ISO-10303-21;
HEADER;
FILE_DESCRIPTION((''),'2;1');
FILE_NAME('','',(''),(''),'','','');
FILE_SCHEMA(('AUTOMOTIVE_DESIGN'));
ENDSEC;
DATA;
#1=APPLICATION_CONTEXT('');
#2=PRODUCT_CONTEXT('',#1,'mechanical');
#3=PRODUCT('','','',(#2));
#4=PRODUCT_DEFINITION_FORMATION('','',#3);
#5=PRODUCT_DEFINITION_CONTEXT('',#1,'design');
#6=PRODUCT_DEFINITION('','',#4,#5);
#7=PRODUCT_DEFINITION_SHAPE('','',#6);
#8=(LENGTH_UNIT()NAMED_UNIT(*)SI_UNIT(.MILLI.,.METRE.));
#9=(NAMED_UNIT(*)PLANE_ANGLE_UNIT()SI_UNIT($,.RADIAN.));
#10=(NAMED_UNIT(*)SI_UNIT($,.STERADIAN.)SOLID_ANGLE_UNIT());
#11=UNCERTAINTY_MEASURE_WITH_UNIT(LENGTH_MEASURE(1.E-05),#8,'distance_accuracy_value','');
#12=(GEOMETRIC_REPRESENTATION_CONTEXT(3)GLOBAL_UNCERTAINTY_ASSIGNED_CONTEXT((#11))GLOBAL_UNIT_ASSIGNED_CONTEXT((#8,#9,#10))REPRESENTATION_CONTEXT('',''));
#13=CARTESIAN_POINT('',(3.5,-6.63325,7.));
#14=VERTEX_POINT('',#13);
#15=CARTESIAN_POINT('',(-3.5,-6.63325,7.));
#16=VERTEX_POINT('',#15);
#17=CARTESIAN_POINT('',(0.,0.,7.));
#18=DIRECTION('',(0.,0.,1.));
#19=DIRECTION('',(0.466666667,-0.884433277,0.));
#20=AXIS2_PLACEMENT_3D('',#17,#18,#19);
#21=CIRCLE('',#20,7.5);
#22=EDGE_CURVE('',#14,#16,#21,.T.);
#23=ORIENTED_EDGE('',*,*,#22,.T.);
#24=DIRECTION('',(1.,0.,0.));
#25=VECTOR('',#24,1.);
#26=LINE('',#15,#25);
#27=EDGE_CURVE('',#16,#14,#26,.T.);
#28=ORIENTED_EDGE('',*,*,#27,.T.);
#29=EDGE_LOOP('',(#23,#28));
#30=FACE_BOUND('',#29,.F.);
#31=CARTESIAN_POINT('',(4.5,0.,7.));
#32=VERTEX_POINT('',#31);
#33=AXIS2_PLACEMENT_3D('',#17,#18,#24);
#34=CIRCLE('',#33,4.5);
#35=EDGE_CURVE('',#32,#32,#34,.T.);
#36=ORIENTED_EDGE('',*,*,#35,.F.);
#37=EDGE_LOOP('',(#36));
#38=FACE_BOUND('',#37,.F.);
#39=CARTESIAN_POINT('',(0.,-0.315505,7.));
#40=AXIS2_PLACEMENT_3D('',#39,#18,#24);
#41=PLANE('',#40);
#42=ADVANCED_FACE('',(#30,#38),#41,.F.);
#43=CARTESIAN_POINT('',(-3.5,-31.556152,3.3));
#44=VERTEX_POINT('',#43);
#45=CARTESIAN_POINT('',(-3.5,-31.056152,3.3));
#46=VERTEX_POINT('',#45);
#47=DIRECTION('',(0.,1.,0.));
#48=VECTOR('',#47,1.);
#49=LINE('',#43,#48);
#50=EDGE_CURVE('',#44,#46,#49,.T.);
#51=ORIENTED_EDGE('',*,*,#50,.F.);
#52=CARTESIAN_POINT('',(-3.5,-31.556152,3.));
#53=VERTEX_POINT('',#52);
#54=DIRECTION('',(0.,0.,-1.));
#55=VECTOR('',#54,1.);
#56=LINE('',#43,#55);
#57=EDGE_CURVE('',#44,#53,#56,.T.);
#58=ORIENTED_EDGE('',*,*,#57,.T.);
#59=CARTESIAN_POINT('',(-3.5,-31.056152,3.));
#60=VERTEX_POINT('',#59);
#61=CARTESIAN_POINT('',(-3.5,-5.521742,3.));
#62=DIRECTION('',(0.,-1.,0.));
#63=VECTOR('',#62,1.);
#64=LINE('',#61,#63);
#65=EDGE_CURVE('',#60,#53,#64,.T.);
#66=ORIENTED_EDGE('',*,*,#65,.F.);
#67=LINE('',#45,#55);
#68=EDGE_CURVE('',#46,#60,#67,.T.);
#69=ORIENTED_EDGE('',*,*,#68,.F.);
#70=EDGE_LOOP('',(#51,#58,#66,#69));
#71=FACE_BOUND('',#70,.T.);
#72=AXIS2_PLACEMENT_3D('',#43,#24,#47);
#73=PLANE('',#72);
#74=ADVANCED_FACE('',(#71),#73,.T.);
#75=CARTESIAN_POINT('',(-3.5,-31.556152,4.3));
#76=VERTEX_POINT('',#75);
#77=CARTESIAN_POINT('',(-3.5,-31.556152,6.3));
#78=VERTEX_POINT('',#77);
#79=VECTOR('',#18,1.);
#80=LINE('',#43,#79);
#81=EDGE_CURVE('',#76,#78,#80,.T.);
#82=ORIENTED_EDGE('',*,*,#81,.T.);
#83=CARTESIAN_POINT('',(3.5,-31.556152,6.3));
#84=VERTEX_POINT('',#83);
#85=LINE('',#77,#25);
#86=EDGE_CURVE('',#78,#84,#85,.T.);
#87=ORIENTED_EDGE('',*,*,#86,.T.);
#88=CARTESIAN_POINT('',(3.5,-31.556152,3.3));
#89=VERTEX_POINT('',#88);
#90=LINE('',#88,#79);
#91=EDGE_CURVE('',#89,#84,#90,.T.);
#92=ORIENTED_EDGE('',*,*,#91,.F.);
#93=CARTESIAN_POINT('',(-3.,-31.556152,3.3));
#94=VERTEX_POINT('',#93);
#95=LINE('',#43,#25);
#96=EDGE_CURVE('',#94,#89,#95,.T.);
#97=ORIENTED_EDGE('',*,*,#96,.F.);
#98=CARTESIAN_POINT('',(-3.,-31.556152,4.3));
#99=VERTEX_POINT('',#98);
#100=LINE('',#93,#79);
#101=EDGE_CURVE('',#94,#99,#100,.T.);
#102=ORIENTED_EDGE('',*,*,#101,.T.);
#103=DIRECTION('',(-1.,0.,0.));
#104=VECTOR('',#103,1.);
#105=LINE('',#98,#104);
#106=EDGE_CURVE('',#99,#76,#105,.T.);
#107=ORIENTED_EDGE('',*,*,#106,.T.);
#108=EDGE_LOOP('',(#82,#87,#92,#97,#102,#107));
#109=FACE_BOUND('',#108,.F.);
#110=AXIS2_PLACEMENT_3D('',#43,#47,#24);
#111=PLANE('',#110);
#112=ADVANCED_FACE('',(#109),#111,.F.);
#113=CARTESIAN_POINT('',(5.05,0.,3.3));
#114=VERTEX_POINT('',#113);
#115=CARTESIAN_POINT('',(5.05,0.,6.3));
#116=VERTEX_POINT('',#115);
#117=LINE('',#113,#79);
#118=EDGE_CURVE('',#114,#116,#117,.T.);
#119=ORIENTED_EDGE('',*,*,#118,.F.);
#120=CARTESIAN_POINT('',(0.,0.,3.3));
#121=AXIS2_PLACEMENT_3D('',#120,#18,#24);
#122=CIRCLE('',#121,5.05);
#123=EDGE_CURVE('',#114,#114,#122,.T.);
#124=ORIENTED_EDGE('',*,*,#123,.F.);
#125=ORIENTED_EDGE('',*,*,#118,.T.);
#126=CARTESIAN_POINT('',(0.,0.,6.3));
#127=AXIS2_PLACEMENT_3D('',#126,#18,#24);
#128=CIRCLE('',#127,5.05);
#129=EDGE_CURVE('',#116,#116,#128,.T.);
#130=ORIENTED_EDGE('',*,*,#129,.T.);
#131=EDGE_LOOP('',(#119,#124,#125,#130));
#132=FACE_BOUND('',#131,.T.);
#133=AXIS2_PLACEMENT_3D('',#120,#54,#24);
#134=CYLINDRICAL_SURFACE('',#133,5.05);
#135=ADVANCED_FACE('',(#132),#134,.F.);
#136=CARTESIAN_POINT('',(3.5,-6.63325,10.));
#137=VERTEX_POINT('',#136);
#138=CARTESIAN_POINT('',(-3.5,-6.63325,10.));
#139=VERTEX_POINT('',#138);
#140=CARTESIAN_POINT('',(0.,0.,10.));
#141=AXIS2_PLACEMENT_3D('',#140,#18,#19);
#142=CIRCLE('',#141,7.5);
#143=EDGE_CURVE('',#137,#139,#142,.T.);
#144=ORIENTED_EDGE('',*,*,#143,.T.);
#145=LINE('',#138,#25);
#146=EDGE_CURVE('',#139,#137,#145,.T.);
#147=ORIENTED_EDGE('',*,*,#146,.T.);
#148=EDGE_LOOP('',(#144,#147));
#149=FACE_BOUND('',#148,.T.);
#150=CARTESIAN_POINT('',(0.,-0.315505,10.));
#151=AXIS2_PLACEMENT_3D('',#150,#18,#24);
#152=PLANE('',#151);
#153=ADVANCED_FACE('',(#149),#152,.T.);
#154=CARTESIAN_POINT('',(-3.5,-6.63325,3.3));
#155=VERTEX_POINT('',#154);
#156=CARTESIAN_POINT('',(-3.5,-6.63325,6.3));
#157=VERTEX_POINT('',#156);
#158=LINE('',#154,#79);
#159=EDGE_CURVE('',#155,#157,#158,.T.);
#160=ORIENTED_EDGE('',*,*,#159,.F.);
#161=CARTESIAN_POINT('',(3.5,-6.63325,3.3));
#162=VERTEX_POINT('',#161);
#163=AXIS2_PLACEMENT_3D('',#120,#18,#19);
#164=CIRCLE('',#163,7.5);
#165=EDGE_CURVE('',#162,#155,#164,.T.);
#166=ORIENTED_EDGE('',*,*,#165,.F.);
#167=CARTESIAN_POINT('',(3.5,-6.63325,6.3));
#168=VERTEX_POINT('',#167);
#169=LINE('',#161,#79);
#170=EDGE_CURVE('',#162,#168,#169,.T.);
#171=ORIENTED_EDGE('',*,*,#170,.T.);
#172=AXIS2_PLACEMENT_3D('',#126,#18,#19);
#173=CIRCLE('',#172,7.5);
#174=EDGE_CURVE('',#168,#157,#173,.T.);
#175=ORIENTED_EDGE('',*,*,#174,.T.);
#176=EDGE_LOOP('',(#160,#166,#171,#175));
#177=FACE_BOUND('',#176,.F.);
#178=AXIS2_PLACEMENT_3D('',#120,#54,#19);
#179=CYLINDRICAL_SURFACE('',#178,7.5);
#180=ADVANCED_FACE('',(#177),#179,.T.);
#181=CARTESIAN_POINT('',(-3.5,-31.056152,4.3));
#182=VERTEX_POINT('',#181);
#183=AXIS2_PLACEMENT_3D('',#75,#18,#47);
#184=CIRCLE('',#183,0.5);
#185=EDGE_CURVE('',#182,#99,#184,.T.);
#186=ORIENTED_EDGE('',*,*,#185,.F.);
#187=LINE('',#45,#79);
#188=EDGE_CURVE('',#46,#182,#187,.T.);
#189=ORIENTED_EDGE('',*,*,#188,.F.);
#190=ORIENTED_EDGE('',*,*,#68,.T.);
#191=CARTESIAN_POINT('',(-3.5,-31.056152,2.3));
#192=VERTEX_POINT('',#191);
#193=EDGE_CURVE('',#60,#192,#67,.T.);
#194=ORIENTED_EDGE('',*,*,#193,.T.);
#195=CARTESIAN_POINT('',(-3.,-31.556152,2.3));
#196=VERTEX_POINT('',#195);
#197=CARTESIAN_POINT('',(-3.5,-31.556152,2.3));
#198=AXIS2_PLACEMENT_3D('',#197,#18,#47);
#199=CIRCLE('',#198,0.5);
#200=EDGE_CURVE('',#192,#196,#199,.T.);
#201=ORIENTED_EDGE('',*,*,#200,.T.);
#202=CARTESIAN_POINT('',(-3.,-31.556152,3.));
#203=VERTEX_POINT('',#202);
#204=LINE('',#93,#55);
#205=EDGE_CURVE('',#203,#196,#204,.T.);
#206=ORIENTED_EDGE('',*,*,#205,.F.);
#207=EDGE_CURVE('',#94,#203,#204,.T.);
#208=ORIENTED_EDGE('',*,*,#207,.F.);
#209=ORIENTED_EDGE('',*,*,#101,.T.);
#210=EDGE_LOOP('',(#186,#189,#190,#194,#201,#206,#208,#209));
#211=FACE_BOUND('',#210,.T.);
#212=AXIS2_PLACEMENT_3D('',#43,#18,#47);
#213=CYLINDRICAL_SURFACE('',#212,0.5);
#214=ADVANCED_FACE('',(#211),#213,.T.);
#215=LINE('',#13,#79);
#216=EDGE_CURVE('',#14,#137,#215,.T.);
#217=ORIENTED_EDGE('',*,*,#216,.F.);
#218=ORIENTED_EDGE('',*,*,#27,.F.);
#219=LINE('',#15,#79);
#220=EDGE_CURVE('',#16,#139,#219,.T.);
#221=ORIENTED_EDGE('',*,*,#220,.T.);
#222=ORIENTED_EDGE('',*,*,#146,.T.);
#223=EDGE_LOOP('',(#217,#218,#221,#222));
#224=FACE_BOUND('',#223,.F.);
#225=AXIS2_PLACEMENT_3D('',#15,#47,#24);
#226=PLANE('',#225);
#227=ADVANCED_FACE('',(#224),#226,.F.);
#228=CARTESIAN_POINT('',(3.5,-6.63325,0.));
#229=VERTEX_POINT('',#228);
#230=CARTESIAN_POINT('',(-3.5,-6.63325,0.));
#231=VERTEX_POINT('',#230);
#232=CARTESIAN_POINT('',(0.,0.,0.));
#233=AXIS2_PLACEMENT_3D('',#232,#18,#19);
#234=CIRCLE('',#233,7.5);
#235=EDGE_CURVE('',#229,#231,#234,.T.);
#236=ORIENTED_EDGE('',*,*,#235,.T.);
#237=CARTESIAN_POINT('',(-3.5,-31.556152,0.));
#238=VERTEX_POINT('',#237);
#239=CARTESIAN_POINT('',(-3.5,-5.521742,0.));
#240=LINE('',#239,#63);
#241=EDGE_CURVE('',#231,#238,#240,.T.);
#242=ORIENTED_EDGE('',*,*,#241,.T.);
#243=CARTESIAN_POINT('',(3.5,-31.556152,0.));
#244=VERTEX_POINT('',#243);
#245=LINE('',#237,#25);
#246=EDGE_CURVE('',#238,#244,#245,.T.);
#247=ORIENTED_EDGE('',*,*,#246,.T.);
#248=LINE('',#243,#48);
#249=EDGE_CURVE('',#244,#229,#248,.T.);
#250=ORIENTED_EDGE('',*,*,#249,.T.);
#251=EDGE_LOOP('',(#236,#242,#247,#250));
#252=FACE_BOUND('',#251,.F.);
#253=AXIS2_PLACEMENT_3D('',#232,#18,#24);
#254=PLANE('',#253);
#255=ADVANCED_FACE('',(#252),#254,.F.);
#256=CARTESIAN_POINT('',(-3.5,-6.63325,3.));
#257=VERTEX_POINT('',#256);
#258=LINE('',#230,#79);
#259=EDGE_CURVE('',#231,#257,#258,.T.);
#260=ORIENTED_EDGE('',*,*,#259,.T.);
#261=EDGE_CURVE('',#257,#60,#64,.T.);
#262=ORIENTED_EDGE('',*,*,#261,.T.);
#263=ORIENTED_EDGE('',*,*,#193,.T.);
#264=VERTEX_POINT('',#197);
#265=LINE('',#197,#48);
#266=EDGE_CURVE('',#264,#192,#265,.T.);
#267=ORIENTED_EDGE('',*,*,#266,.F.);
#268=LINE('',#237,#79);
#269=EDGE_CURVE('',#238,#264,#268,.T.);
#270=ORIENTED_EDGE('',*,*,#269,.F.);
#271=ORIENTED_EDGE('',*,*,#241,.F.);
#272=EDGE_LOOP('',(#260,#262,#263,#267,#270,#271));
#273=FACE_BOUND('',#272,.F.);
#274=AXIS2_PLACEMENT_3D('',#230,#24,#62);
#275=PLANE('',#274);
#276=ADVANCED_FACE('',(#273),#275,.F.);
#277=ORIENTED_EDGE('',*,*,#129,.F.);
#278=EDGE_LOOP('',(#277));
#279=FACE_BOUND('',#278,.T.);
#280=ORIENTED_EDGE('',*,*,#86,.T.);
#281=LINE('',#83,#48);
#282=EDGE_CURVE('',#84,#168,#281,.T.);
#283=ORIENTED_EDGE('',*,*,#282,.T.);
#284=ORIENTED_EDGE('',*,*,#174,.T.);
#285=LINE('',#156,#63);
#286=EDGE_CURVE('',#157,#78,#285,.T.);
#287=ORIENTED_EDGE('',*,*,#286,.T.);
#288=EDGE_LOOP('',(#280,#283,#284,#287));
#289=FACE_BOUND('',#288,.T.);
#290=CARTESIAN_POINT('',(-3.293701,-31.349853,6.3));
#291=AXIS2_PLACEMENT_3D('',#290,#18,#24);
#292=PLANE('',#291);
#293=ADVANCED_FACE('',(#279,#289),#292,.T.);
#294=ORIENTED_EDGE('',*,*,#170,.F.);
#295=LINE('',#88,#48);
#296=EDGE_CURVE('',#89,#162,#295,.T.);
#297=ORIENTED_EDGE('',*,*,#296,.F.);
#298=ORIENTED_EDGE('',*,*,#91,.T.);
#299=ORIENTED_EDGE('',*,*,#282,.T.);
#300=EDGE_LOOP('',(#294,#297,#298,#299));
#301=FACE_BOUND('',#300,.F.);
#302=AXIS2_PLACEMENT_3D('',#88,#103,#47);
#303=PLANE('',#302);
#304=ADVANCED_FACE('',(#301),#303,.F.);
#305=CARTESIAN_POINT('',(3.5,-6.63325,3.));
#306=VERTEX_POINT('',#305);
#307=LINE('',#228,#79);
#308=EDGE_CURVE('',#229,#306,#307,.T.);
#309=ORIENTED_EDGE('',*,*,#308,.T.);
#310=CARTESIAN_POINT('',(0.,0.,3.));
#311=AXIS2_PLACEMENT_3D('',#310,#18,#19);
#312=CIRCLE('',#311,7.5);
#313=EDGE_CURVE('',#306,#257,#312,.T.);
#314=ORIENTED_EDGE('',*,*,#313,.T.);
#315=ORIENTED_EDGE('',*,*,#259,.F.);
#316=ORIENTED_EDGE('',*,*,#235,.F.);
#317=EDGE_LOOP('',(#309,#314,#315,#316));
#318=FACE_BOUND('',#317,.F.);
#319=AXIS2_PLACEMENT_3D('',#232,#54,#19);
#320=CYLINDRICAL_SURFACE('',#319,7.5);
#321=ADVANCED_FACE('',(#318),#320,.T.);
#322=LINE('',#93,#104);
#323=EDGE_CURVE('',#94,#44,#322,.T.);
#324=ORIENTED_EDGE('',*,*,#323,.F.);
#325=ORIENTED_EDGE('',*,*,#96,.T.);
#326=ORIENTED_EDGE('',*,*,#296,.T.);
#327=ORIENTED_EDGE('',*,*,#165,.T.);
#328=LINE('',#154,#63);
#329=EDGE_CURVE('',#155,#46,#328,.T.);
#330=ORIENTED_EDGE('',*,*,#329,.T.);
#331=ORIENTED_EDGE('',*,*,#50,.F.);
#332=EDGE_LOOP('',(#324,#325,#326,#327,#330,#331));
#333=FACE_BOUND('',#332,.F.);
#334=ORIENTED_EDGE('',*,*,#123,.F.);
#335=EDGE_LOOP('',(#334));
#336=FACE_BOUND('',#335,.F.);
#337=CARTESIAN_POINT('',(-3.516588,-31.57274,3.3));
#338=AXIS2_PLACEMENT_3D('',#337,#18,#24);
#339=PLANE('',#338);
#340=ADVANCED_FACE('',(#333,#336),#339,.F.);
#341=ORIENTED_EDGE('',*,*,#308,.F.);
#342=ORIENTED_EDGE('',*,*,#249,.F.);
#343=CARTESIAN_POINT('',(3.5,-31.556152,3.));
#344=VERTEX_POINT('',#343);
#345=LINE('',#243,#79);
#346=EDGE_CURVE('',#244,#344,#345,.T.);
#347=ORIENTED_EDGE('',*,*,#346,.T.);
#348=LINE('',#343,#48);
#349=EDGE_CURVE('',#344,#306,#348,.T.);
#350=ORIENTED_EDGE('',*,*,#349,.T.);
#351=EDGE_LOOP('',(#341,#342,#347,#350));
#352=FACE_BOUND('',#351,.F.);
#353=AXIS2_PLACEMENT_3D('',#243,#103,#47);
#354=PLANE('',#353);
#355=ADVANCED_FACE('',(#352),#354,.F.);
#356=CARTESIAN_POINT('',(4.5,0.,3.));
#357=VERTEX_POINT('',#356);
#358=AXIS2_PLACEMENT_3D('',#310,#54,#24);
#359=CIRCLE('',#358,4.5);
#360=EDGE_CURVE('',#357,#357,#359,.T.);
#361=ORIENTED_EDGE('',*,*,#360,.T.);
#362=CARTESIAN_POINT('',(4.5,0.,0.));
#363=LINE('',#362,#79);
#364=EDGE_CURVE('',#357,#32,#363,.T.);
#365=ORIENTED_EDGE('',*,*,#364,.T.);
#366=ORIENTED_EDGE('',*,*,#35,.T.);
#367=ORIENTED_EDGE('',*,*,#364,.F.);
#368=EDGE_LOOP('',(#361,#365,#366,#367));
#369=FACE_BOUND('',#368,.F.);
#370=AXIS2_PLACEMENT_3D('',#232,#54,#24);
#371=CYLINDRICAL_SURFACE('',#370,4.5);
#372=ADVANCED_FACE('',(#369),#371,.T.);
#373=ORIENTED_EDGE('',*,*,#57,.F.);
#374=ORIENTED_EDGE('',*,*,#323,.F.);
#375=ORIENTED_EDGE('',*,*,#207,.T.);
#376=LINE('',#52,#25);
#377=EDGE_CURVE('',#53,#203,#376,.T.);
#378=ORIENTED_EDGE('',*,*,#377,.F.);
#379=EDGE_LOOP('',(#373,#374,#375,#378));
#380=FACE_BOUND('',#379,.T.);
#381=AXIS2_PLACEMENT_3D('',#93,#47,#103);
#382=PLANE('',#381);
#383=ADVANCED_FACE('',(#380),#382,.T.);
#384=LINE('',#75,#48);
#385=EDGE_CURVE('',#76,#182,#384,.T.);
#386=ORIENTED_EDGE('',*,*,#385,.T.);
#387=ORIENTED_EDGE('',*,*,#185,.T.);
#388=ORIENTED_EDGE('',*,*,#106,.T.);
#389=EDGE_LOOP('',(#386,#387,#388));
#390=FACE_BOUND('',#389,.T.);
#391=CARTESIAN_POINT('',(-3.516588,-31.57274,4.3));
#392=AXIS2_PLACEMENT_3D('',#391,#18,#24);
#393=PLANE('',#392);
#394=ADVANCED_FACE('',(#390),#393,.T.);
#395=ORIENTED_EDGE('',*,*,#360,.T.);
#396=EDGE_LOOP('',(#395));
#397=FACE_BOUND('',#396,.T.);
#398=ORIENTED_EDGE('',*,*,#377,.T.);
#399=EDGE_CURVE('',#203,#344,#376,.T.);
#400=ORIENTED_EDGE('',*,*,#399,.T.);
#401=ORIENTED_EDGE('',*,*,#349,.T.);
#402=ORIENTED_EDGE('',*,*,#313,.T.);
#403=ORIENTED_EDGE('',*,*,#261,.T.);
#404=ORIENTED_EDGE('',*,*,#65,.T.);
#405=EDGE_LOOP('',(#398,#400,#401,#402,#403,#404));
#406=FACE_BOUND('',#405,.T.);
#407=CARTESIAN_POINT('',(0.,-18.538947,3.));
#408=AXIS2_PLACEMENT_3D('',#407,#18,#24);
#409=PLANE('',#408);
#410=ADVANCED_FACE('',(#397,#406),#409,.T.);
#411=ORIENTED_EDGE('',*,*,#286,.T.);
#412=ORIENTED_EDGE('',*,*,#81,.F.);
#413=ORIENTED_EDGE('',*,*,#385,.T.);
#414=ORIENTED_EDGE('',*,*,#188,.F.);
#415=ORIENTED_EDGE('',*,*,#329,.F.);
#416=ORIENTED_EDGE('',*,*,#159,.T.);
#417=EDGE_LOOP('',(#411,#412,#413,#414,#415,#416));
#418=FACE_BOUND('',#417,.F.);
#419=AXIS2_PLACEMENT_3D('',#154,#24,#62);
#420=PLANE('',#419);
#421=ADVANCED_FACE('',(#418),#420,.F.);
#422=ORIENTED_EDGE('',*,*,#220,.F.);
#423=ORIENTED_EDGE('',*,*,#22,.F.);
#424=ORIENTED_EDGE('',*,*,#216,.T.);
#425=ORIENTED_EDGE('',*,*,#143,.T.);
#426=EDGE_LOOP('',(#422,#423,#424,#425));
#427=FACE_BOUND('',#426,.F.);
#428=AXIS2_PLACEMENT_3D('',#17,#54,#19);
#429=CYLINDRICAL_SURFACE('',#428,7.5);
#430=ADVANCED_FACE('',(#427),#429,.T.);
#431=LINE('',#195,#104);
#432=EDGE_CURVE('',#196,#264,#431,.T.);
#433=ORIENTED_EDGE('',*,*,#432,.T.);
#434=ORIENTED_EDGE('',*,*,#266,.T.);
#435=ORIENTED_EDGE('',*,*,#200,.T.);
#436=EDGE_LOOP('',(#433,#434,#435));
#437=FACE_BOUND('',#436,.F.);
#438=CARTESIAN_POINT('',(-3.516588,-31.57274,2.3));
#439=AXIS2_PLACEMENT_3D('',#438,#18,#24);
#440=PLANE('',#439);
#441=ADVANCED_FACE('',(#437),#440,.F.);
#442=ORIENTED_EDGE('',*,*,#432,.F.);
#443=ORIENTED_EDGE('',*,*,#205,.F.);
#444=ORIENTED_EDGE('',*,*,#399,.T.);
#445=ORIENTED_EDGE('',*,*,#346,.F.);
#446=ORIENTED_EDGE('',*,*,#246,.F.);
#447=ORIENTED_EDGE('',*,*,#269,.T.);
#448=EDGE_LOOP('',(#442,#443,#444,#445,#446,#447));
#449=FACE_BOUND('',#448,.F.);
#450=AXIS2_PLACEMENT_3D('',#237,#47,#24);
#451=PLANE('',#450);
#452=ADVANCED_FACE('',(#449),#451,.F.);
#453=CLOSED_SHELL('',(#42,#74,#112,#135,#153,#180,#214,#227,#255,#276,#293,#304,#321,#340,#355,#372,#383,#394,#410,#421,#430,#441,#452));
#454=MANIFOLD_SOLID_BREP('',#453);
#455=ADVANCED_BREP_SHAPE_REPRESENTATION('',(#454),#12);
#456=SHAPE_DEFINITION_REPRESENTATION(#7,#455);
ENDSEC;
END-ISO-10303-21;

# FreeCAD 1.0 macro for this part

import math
import FreeCAD as App
import Part
import Sketcher

V = App.Vector
Q = App.Units.Quantity

doc = App.newDocument("Part")
body = doc.addObject("PartDesign::Body", "Body")

sketch1 = doc.addObject("Sketcher::SketchObject", "Sketch")
body.addObject(sketch1)
sketch1.AttachmentSupport = (doc.XY_Plane, [""])
sketch1.MapMode = "FlatFace"
sketch1.AttachmentOffset = App.Placement(V(0, 0, 3.3), App.Rotation())
sketch1.addGeometry([
    Part.LineSegment(V(-4, -32, 0), V(4, -32, 0)),
    Part.LineSegment(V(4, -32, 0), V(4, -7, 0)),
    Part.ArcOfCircle(Part.Circle(V(0, 0, 0), V(0, 0, 1), 8), math.radians(-62), math.radians(242)),
    Part.LineSegment(V(-4, -7, 0), V(-4, -32, 0)),
    Part.Circle(V(0, 0, 0), V(0, 0, 1), 5),
], False)
sketch1.addConstraint([
    Sketcher.Constraint("Coincident", 0, 2, 1, 1),
    Sketcher.Constraint("Coincident", 1, 2, 2, 1),
    Sketcher.Constraint("Coincident", 2, 2, 3, 1),
    Sketcher.Constraint("Coincident", 3, 2, 0, 1),
    Sketcher.Constraint("Horizontal", 0),
    Sketcher.Constraint("Vertical", 1),
    Sketcher.Constraint("Vertical", 3),
    Sketcher.Constraint("Coincident", 2, 3, -1, 1),
    Sketcher.Constraint("Coincident", 4, 3, -1, 1),
    Sketcher.Constraint("Horizontal", 1, 2, 2, 2),
    Sketcher.Constraint("Diameter", 4, Q("10.1 mm")),
    Sketcher.Constraint("Radius", 2, Q("7.5 mm")),
    Sketcher.Constraint("DistanceX", 0, 1, 0, 2, Q("7 mm")),
    Sketcher.Constraint("DistanceY", 1, 1, 1, 2, Q("24.922903 mm")),
])
pad1 = doc.addObject("PartDesign::Pad", "Pad")
body.addObject(pad1)
pad1.Profile = sketch1
pad1.Length = 3
body2 = doc.addObject("PartDesign::Body", "Body001")

sketch2 = doc.addObject("Sketcher::SketchObject", "Sketch001")
body2.addObject(sketch2)
sketch2.AttachmentSupport = (doc.getObject("XY_Plane001"), [""])
sketch2.MapMode = "FlatFace"
sketch2.addGeometry([
    Part.LineSegment(V(4, -32, 0), V(4, -7, 0)),
    Part.ArcOfCircle(Part.Circle(V(0, 0, 0), V(0, 0, 1), 8), math.radians(-62), math.radians(242)),
    Part.LineSegment(V(-4, -7, 0), V(-4, -32, 0)),
    Part.LineSegment(V(-4, -32, 0), V(4, -32, 0)),
], False)
sketch2.addConstraint([
    Sketcher.Constraint("Coincident", 0, 2, 1, 1),
    Sketcher.Constraint("Coincident", 1, 2, 2, 1),
    Sketcher.Constraint("Coincident", 2, 2, 3, 1),
    Sketcher.Constraint("Coincident", 3, 2, 0, 1),
    Sketcher.Constraint("Vertical", 0),
    Sketcher.Constraint("Vertical", 2),
    Sketcher.Constraint("Horizontal", 3),
    Sketcher.Constraint("Coincident", 1, 3, -1, 1),
    Sketcher.Constraint("Horizontal", 0, 2, 1, 2),
    Sketcher.Constraint("Radius", 1, Q("7.5 mm")),
    Sketcher.Constraint("DistanceX", 3, 1, 3, 2, Q("7 mm")),
    Sketcher.Constraint("DistanceY", 0, 1, 0, 2, Q("24.922903 mm")),
])
pad2 = doc.addObject("PartDesign::Pad", "Pad001")
body2.addObject(pad2)
pad2.Profile = sketch2
pad2.Length = 3

sketch3 = doc.addObject("Sketcher::SketchObject", "Sketch002")
body2.addObject(sketch3)
sketch3.AttachmentSupport = (doc.getObject("XY_Plane001"), [""])
sketch3.MapMode = "FlatFace"
sketch3.addGeometry(Part.Circle(V(0, 0, 0), V(0, 0, 1), 4.5), False)
sketch3.addConstraint([
    Sketcher.Constraint("Coincident", 0, 3, -1, 1),
    Sketcher.Constraint("Diameter", 0, Q("9 mm")),
])
pad3 = doc.addObject("PartDesign::Pad", "Pad002")
body2.addObject(pad3)
pad3.Profile = sketch3
pad3.Length = 7

sketch4 = doc.addObject("Sketcher::SketchObject", "Sketch003")
body2.addObject(sketch4)
sketch4.AttachmentSupport = (doc.getObject("XY_Plane001"), [""])
sketch4.MapMode = "FlatFace"
sketch4.AttachmentOffset = App.Placement(V(0, 0, 7), App.Rotation())
sketch4.addGeometry([
    Part.LineSegment(V(-4, -7, 0), V(4, -7, 0)),
    Part.ArcOfCircle(Part.Circle(V(0, 0, 0), V(0, 0, 1), 8), math.radians(-62), math.radians(242)),
], False)
sketch4.addConstraint([
    Sketcher.Constraint("Coincident", 0, 1, 1, 2),
    Sketcher.Constraint("Coincident", 1, 1, 0, 2),
    Sketcher.Constraint("Horizontal", 0),
    Sketcher.Constraint("Coincident", 1, 3, -1, 1),
    Sketcher.Constraint("Radius", 1, Q("7.5 mm")),
    Sketcher.Constraint("DistanceX", 0, 1, 0, 2, Q("7 mm")),
])
pad4 = doc.addObject("PartDesign::Pad", "Pad003")
body2.addObject(pad4)
pad4.Profile = sketch4
pad4.Length = 3
body.AllowCompound = True
doc.recompute()

boolean = doc.addObject("PartDesign::Boolean", "Boolean")
body.addObject(boolean)
boolean.Type = "Fuse"
boolean.addObjects([body2])

sketch5 = doc.addObject("Sketcher::SketchObject", "Sketch004")
body.addObject(sketch5)
sketch5.AttachmentSupport = (doc.XY_Plane, [""])
sketch5.MapMode = "FlatFace"
sketch5.AttachmentOffset = App.Placement(V(0, 0, 3.3), App.Rotation())
sketch5.addGeometry([
    Part.LineSegment(V(-3.5, -31.6, 0), V(-3.5, -31.1, 0)),
    Part.ArcOfCircle(Part.Circle(V(-3.5, -31.6, 0), V(0, 0, 1), 0.5), math.radians(90), math.radians(360)),
    Part.LineSegment(V(-3, -31.6, 0), V(-3.5, -31.6, 0)),
], False)
sketch5.addConstraint([
    Sketcher.Constraint("Coincident", 0, 2, 1, 1),
    Sketcher.Constraint("Coincident", 1, 2, 2, 1),
    Sketcher.Constraint("Coincident", 2, 2, 0, 1),
    Sketcher.Constraint("Vertical", 0),
    Sketcher.Constraint("Horizontal", 2),
    Sketcher.Constraint("Coincident", 2, 2, 1, 3),
    Sketcher.Constraint("Radius", 1, Q("0.5 mm")),
    Sketcher.Constraint("DistanceX", 1, 2, -1, 1, Q("3 mm")),
    Sketcher.Constraint("DistanceY", 1, 3, -1, 1, Q("31.556152 mm")),
])
pad5 = doc.addObject("PartDesign::Pad", "Pad004")
body.addObject(pad5)
pad5.Profile = sketch5
pad5.Type = "TwoLengths"
pad5.Length = 1
pad5.Length2 = 1

doc.recompute()
